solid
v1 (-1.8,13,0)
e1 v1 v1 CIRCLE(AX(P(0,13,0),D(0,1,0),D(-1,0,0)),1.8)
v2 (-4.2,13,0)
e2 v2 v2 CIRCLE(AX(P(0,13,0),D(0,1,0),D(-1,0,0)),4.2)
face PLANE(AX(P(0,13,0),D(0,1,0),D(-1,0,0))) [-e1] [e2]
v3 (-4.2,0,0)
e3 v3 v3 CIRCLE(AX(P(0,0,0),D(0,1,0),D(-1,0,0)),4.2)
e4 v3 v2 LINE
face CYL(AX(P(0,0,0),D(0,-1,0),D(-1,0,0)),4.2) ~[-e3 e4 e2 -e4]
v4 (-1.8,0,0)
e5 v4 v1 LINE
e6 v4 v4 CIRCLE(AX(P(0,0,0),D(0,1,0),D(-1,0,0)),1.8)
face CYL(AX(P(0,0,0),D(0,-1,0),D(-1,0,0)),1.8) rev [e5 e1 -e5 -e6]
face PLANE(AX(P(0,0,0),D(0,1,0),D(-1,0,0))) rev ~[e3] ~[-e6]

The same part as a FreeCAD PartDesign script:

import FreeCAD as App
import Part
import Sketcher

doc = App.newDocument("Part")
params = doc.addObject("Spreadsheet::Sheet", "Params")
for row, (alias, value) in enumerate([
    ("sketch1_diameter", "8.4 mm"),
    ("sketch1_diameter2", "3.6 mm"),
    ("pad1_length", "13 mm"),
], start=1):
    params.set(f"A{row}", alias)
    params.set(f"B{row}", "=" + value)
    params.setAlias(f"B{row}", alias)

body = doc.addObject("PartDesign::Body", "Body")

sketch1 = body.newObject("Sketcher::SketchObject", "Sketch")
sketch1.AttachmentSupport = (doc.getObject("XZ_Plane"), [""])
sketch1.MapMode = "FlatFace"
sketch1.addGeometry([
    Part.Circle(App.Vector(0, 0, 0), App.Vector(0, 0, 1), 4.2),
    Part.Circle(App.Vector(0, 0, 0), App.Vector(0, 0, 1), 1.8),
], False)
sketch1.addConstraint([
    Sketcher.Constraint("Coincident", 0, 3, -1, 1),
    Sketcher.Constraint("Coincident", 1, 3, -1, 1),
    Sketcher.Constraint("Diameter", 0, 8.4),
    Sketcher.Constraint("Diameter", 1, 3.6),
])
sketch1.setExpression("Constraints[2]", "Params.sketch1_diameter")
sketch1.setExpression("Constraints[3]", "Params.sketch1_diameter2")
pad1 = body.newObject("PartDesign::Pad", "Pad")
pad1.Profile = sketch1
pad1.setExpression("Length", "Params.pad1_length")
pad1.Reversed = True

doc.recompute()
